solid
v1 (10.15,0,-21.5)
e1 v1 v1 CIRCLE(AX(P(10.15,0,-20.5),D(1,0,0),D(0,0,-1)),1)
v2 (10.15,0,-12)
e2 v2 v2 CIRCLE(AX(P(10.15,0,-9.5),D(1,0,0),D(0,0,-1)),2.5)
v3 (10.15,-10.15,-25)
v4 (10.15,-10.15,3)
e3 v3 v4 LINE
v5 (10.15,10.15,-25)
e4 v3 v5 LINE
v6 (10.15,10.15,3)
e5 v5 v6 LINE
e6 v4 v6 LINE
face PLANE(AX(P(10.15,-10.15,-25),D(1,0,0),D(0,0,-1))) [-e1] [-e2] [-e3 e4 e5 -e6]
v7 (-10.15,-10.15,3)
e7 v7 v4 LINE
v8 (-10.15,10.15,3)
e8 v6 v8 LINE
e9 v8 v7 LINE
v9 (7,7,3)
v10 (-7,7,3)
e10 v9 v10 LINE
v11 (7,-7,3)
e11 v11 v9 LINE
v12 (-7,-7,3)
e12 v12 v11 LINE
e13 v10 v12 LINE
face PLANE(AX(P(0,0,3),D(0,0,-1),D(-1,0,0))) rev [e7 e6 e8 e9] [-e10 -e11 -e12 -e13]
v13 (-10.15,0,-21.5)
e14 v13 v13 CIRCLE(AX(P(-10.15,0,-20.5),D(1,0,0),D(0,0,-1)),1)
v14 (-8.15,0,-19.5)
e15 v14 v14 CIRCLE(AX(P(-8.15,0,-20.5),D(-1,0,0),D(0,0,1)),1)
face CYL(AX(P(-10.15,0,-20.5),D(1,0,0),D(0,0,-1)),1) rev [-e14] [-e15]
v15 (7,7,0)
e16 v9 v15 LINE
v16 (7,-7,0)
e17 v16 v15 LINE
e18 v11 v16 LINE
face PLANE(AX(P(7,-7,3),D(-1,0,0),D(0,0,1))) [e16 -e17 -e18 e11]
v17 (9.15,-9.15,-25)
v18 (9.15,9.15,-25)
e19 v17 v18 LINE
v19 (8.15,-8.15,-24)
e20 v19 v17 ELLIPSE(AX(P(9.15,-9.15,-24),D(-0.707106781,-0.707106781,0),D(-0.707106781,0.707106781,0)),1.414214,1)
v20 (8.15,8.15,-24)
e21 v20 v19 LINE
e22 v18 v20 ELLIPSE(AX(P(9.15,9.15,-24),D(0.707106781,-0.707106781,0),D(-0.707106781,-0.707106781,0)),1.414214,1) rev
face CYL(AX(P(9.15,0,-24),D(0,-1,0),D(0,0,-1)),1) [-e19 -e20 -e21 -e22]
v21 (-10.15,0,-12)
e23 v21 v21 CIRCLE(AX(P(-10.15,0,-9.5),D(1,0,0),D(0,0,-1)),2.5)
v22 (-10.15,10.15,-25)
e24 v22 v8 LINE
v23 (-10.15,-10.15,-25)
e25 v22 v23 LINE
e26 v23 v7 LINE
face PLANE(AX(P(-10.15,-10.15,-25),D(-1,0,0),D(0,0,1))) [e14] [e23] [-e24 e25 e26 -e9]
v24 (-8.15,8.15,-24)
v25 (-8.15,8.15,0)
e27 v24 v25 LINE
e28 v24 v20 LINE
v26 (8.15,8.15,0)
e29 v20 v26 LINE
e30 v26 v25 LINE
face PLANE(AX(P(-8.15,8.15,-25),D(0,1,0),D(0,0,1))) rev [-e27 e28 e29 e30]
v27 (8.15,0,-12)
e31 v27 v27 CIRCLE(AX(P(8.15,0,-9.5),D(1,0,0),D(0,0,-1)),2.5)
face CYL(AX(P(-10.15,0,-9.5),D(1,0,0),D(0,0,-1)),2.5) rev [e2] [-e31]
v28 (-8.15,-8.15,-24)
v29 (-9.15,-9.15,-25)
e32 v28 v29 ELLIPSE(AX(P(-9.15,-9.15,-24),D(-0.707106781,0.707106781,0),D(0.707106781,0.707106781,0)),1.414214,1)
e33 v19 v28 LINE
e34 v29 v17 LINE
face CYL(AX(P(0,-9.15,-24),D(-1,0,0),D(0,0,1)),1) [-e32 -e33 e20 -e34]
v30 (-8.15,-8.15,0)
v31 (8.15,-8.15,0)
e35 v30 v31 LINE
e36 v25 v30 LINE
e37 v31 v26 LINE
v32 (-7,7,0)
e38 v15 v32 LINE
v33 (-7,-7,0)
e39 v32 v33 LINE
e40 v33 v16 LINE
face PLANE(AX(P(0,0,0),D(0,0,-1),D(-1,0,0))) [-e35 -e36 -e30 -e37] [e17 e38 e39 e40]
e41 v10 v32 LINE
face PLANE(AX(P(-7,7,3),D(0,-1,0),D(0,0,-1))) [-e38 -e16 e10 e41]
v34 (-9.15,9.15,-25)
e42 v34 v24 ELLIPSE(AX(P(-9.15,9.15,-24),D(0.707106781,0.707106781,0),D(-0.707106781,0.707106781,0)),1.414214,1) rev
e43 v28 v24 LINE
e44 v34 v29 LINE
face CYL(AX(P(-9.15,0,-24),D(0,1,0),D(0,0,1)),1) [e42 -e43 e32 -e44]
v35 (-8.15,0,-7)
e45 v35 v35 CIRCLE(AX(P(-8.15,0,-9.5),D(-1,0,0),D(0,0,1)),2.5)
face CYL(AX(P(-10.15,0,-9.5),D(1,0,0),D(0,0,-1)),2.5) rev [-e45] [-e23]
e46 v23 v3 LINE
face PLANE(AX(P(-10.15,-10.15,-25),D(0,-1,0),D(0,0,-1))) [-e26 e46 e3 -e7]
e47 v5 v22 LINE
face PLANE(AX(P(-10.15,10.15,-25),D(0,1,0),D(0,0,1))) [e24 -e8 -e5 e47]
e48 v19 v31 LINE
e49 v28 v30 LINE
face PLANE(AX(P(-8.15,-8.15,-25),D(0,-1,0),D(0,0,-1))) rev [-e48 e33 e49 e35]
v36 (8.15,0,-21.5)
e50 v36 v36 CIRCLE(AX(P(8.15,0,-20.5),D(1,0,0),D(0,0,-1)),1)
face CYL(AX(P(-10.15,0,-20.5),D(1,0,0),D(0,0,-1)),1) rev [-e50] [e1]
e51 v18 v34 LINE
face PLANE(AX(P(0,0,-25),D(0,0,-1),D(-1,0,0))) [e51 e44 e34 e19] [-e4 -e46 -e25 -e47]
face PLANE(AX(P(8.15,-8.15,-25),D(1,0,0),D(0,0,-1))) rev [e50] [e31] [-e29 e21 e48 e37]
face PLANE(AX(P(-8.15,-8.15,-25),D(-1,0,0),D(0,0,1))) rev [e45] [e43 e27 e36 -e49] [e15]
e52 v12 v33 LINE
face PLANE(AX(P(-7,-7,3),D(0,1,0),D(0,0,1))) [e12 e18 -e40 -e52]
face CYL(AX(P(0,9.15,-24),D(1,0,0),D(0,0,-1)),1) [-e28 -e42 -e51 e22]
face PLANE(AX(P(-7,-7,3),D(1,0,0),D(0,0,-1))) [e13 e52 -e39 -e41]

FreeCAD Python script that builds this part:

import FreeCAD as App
import Part
import Sketcher
from FreeCAD import Vector


def edges_at(feature, points):
    """Names of the edges that pass closest to the given points."""
    edges = feature.Shape.Edges
    near = lambda p: min(range(len(edges)), key=lambda i: edges[i].distToShape(Part.Vertex(*p))[0])
    return sorted({f"Edge{near(p) + 1}" for p in points})

doc = App.newDocument("Part")
params = doc.addObject("Spreadsheet::Sheet", "Params")
for row, (alias, value) in enumerate([
    ("sketch1_width", "20.3 mm"),
    ("sketch1_width2", "16.3 mm"),
    ("pad1_length", "25 mm"),
    ("sketch2_width", "14 mm"),
    ("sketch2_width2", "20.3 mm"),
    ("pad2_length", "3 mm"),
    ("sketch3_diameter", "2 mm"),
    ("sketch3_diameter2", "5 mm"),
    ("fillet_radius", "1 mm"),
], start=1):
    params.set(f"A{row}", alias)
    params.set(f"B{row}", "=" + value)
    params.setAlias(f"B{row}", alias)

body = doc.addObject("PartDesign::Body", "Body")

sketch1 = doc.addObject("Sketcher::SketchObject", "Sketch")
body.addObject(sketch1)
sketch1.AttachmentSupport = (doc.XY_Plane, [""])
sketch1.MapMode = "FlatFace"
sketch1.addGeometry(Part.LineSegment(Vector(-10, 10, 0), Vector(-10, -10, 0)), False)
sketch1.addGeometry(Part.LineSegment(Vector(-10, -10, 0), Vector(10, -10, 0)), False)
sketch1.addGeometry(Part.LineSegment(Vector(10, -10, 0), Vector(10, 10, 0)), False)
sketch1.addGeometry(Part.LineSegment(Vector(10, 10, 0), Vector(-10, 10, 0)), False)
sketch1.addGeometry(Part.LineSegment(Vector(8, -8, 0), Vector(-8, -8, 0)), False)
sketch1.addGeometry(Part.LineSegment(Vector(-8, -8, 0), Vector(-8, 8, 0)), False)
sketch1.addGeometry(Part.LineSegment(Vector(-8, 8, 0), Vector(8, 8, 0)), False)
sketch1.addGeometry(Part.LineSegment(Vector(8, 8, 0), Vector(8, -8, 0)), False)
sketch1.addConstraint(Sketcher.Constraint("Coincident", 0, 2, 1, 1))
sketch1.addConstraint(Sketcher.Constraint("Coincident", 1, 2, 2, 1))
sketch1.addConstraint(Sketcher.Constraint("Coincident", 2, 2, 3, 1))
sketch1.addConstraint(Sketcher.Constraint("Coincident", 3, 2, 0, 1))
sketch1.addConstraint(Sketcher.Constraint("Coincident", 4, 2, 5, 1))
sketch1.addConstraint(Sketcher.Constraint("Coincident", 5, 2, 6, 1))
sketch1.addConstraint(Sketcher.Constraint("Coincident", 6, 2, 7, 1))
sketch1.addConstraint(Sketcher.Constraint("Coincident", 7, 2, 4, 1))
sketch1.addConstraint(Sketcher.Constraint("Vertical", 0))
sketch1.addConstraint(Sketcher.Constraint("Horizontal", 1))
sketch1.addConstraint(Sketcher.Constraint("Vertical", 2))
sketch1.addConstraint(Sketcher.Constraint("Horizontal", 3))
sketch1.addConstraint(Sketcher.Constraint("Horizontal", 4))
sketch1.addConstraint(Sketcher.Constraint("Vertical", 5))
sketch1.addConstraint(Sketcher.Constraint("Horizontal", 6))
sketch1.addConstraint(Sketcher.Constraint("Vertical", 7))
sketch1.addConstraint(Sketcher.Constraint("Symmetric", 0, 2, 2, 2, -1, 1))
sketch1.addConstraint(Sketcher.Constraint("Symmetric", 4, 2, 6, 2, -1, 1))
sketch1.addConstraint(Sketcher.Constraint("Equal", 3, 0))
sketch1.addConstraint(Sketcher.Constraint("Equal", 6, 5))
sketch1.addConstraint(Sketcher.Constraint("DistanceX", 1, 1, 1, 2, 20.3))
sketch1.addConstraint(Sketcher.Constraint("DistanceX", 4, 2, 4, 1, 16.3))
sketch1.setExpression("Constraints[20]", "Params.sketch1_width")
sketch1.setExpression("Constraints[21]", "Params.sketch1_width2")
pad1 = doc.addObject("PartDesign::Pad", "Pad")
body.addObject(pad1)
pad1.Profile = sketch1
pad1.setExpression("Length", "Params.pad1_length")
pad1.Reversed = True

sketch2 = doc.addObject("Sketcher::SketchObject", "Sketch001")
body.addObject(sketch2)
sketch2.AttachmentSupport = (doc.XY_Plane, [""])
sketch2.MapMode = "FlatFace"
sketch2.addGeometry(Part.LineSegment(Vector(-10, 10, 0), Vector(-10, -10, 0)), False)
sketch2.addGeometry(Part.LineSegment(Vector(-10, -10, 0), Vector(10, -10, 0)), False)
sketch2.addGeometry(Part.LineSegment(Vector(10, -10, 0), Vector(10, 10, 0)), False)
sketch2.addGeometry(Part.LineSegment(Vector(10, 10, 0), Vector(-10, 10, 0)), False)
sketch2.addGeometry(Part.LineSegment(Vector(7, -7, 0), Vector(-7, -7, 0)), False)
sketch2.addGeometry(Part.LineSegment(Vector(-7, -7, 0), Vector(-7, 7, 0)), False)
sketch2.addGeometry(Part.LineSegment(Vector(-7, 7, 0), Vector(7, 7, 0)), False)
sketch2.addGeometry(Part.LineSegment(Vector(7, 7, 0), Vector(7, -7, 0)), False)
sketch2.addConstraint(Sketcher.Constraint("Coincident", 0, 2, 1, 1))
sketch2.addConstraint(Sketcher.Constraint("Coincident", 1, 2, 2, 1))
sketch2.addConstraint(Sketcher.Constraint("Coincident", 2, 2, 3, 1))
sketch2.addConstraint(Sketcher.Constraint("Coincident", 3, 2, 0, 1))
sketch2.addConstraint(Sketcher.Constraint("Coincident", 4, 2, 5, 1))
sketch2.addConstraint(Sketcher.Constraint("Coincident", 5, 2, 6, 1))
sketch2.addConstraint(Sketcher.Constraint("Coincident", 6, 2, 7, 1))
sketch2.addConstraint(Sketcher.Constraint("Coincident", 7, 2, 4, 1))
sketch2.addConstraint(Sketcher.Constraint("Vertical", 0))
sketch2.addConstraint(Sketcher.Constraint("Horizontal", 1))
sketch2.addConstraint(Sketcher.Constraint("Vertical", 2))
sketch2.addConstraint(Sketcher.Constraint("Horizontal", 3))
sketch2.addConstraint(Sketcher.Constraint("Horizontal", 4))
sketch2.addConstraint(Sketcher.Constraint("Vertical", 5))
sketch2.addConstraint(Sketcher.Constraint("Horizontal", 6))
sketch2.addConstraint(Sketcher.Constraint("Vertical", 7))
sketch2.addConstraint(Sketcher.Constraint("Symmetric", 0, 2, 2, 2, -1, 1))
sketch2.addConstraint(Sketcher.Constraint("Symmetric", 4, 2, 6, 2, -1, 1))
sketch2.addConstraint(Sketcher.Constraint("Equal", 3, 0))
sketch2.addConstraint(Sketcher.Constraint("Equal", 6, 5))
sketch2.addConstraint(Sketcher.Constraint("DistanceX", 4, 2, 4, 1, 14.0))
sketch2.addConstraint(Sketcher.Constraint("DistanceX", 1, 1, 1, 2, 20.3))
sketch2.setExpression("Constraints[20]", "Params.sketch2_width")
sketch2.setExpression("Constraints[21]", "Params.sketch2_width2")
pad2 = doc.addObject("PartDesign::Pad", "Pad001")
body.addObject(pad2)
pad2.Profile = sketch2
pad2.setExpression("Length", "Params.pad2_length")

sketch3 = doc.addObject("Sketcher::SketchObject", "Sketch002")
body.addObject(sketch3)
sketch3.AttachmentSupport = (doc.YZ_Plane, [""])
sketch3.MapMode = "FlatFace"
sketch3.AttachmentOffset = App.Placement(Vector(0, 0, 10.15), App.Rotation())
sketch3.addGeometry(Part.Circle(Vector(0, -20.5, 0), Vector(0, 0, 1), 1), False)
sketch3.addGeometry(Part.Circle(Vector(0, -9.5, 0), Vector(0, 0, 1), 2.5), False)
sketch3.addConstraint(Sketcher.Constraint("PointOnObject", 0, 3, -2))
sketch3.addConstraint(Sketcher.Constraint("PointOnObject", 1, 3, -2))
sketch3.addConstraint(Sketcher.Constraint("Diameter", 0, 2.0))
sketch3.addConstraint(Sketcher.Constraint("Diameter", 1, 5.0))
sketch3.addConstraint(Sketcher.Constraint("DistanceY", 0, 3, 1, 3, 11.0))
sketch3.addConstraint(Sketcher.Constraint("DistanceY", 0, 3, -1, 1, 20.5))
sketch3.setExpression("Constraints[2]", "Params.sketch3_diameter")
sketch3.setExpression("Constraints[3]", "Params.sketch3_diameter2")
pocket1 = doc.addObject("PartDesign::Pocket", "Pocket")
body.addObject(pocket1)
pocket1.Profile = sketch3
pocket1.Type = "ThroughAll"
doc.recompute()

fillet = doc.addObject("PartDesign::Fillet", "Fillet")
body.addObject(fillet)
fillet.Base = (pocket1, edges_at(pocket1, [
    (8.15, 0, -25),
    (0, -8.15, -25),
    (-8.15, 0, -25),
    (0, 8.15, -25),
]))
fillet.setExpression("Radius", "Params.fillet_radius")

doc.recompute()
